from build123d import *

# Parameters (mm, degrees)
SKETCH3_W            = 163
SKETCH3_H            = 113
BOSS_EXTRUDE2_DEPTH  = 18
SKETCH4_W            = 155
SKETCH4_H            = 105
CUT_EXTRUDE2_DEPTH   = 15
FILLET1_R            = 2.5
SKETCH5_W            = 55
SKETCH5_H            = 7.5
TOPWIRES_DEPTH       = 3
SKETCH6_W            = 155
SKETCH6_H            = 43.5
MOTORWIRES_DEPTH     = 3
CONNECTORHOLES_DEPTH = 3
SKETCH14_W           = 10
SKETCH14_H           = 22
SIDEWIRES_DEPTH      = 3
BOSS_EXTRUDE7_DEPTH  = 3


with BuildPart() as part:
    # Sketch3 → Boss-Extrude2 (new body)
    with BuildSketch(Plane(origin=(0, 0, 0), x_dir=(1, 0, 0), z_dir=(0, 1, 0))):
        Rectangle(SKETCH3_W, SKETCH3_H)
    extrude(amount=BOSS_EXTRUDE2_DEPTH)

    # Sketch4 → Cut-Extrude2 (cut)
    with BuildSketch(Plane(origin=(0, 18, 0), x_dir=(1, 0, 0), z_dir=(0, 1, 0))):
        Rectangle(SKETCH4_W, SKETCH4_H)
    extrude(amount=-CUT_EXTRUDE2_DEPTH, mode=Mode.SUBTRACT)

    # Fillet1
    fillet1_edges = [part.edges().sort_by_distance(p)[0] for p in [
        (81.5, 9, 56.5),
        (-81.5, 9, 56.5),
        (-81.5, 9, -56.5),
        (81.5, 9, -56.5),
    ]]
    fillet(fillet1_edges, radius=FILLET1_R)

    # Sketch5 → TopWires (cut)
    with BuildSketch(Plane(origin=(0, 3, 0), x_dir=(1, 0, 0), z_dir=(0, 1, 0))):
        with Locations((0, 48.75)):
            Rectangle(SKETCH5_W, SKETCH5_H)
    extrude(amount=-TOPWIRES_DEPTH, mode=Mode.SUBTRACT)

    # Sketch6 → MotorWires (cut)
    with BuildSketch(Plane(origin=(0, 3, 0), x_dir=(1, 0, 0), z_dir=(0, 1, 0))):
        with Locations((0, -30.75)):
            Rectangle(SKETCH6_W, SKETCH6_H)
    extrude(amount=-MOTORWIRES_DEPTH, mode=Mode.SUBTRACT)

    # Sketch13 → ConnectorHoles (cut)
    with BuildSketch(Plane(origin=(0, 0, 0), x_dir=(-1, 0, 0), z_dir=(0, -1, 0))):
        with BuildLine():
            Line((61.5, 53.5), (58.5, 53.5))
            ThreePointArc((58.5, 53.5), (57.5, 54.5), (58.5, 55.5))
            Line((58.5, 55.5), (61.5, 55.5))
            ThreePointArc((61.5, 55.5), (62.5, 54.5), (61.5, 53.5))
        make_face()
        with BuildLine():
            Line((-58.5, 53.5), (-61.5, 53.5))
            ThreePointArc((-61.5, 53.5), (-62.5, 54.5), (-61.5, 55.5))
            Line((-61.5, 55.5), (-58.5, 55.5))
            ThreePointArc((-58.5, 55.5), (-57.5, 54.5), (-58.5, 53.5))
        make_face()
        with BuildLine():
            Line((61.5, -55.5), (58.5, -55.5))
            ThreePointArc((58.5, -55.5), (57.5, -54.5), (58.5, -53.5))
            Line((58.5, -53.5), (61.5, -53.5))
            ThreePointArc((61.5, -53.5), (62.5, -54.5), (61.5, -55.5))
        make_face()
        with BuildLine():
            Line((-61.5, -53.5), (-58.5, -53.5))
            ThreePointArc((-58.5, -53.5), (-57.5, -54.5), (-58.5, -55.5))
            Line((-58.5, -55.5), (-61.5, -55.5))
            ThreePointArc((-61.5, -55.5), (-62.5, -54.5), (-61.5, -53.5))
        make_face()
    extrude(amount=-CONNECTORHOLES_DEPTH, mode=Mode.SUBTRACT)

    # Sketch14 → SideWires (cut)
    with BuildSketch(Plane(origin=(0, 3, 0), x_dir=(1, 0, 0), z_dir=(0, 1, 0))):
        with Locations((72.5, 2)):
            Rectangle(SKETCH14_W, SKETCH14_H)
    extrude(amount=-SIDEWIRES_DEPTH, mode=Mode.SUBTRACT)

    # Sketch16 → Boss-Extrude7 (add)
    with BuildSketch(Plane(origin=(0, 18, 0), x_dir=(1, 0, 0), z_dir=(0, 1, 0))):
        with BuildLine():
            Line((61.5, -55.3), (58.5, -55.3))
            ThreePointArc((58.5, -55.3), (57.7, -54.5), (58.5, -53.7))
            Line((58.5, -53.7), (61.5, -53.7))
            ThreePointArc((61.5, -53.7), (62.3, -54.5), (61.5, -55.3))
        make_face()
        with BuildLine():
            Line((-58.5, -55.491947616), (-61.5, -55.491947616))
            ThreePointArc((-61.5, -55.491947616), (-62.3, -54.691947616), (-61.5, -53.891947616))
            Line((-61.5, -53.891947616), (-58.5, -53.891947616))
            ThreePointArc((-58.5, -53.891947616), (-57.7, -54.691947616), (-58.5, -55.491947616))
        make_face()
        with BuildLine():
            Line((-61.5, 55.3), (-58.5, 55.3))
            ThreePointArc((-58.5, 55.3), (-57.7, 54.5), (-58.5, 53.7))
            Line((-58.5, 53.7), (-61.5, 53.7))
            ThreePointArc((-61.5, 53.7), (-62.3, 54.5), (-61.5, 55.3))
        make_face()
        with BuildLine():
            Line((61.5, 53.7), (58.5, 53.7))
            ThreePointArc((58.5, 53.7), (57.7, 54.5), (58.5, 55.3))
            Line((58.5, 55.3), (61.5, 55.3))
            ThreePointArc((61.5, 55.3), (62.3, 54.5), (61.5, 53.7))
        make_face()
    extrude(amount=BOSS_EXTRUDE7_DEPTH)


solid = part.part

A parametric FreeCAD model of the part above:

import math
import FreeCAD as App
import Part
import Sketcher

V = App.Vector


def edges_at(feature, points):
    """Names of the edges that pass closest to the given points."""
    edges = feature.Shape.Edges
    near = lambda p: min(range(len(edges)), key=lambda i: edges[i].distToShape(Part.Vertex(*p))[0])
    return sorted({f"Edge{near(p) + 1}" for p in points})

doc = App.newDocument("Part")
body = doc.addObject("PartDesign::Body", "Body")

sketch1 = doc.addObject("Sketcher::SketchObject", "Sketch")
body.addObject(sketch1)
sketch1.AttachmentSupport = (doc.XZ_Plane, [""])
sketch1.MapMode = "FlatFace"
sketch1.addGeometry(Part.LineSegment(V(-82, -56, 0), V(-82, 56, 0)), False)
sketch1.addGeometry(Part.LineSegment(V(-82, 56, 0), V(82, 56, 0)), False)
sketch1.addGeometry(Part.LineSegment(V(82, 56, 0), V(82, -56, 0)), False)
sketch1.addGeometry(Part.LineSegment(V(82, -56, 0), V(-82, -56, 0)), False)
sketch1.addConstraint(Sketcher.Constraint("Coincident", 0, 2, 1, 1))
sketch1.addConstraint(Sketcher.Constraint("Coincident", 1, 2, 2, 1))
sketch1.addConstraint(Sketcher.Constraint("Coincident", 2, 2, 3, 1))
sketch1.addConstraint(Sketcher.Constraint("Coincident", 3, 2, 0, 1))
sketch1.addConstraint(Sketcher.Constraint("Vertical", 0))
sketch1.addConstraint(Sketcher.Constraint("Horizontal", 1))
sketch1.addConstraint(Sketcher.Constraint("Vertical", 2))
sketch1.addConstraint(Sketcher.Constraint("Horizontal", 3))
sketch1.addConstraint(Sketcher.Constraint("Symmetric", 0, 2, 2, 2, -1, 1))
sketch1.addConstraint(Sketcher.Constraint("DistanceX", 1, 1, 1, 2, 163.0))
sketch1.addConstraint(Sketcher.Constraint("DistanceY", 0, 1, 0, 2, 113.0))
pad1 = doc.addObject("PartDesign::Pad", "Pad")
body.addObject(pad1)
pad1.Profile = sketch1
pad1.Length = 18
pad1.Reversed = True

sketch2 = doc.addObject("Sketcher::SketchObject", "Sketch001")
body.addObject(sketch2)
sketch2.AttachmentSupport = (doc.XZ_Plane, [""])
sketch2.MapMode = "FlatFace"
sketch2.AttachmentOffset = App.Placement(V(0, 0, -18), App.Rotation())
sketch2.addGeometry(Part.LineSegment(V(-78, -52, 0), V(-78, 52, 0)), False)
sketch2.addGeometry(Part.LineSegment(V(-78, 52, 0), V(78, 52, 0)), False)
sketch2.addGeometry(Part.LineSegment(V(78, 52, 0), V(78, -52, 0)), False)
sketch2.addGeometry(Part.LineSegment(V(78, -52, 0), V(-78, -52, 0)), False)
sketch2.addConstraint(Sketcher.Constraint("Coincident", 0, 2, 1, 1))
sketch2.addConstraint(Sketcher.Constraint("Coincident", 1, 2, 2, 1))
sketch2.addConstraint(Sketcher.Constraint("Coincident", 2, 2, 3, 1))
sketch2.addConstraint(Sketcher.Constraint("Coincident", 3, 2, 0, 1))
sketch2.addConstraint(Sketcher.Constraint("Vertical", 0))
sketch2.addConstraint(Sketcher.Constraint("Horizontal", 1))
sketch2.addConstraint(Sketcher.Constraint("Vertical", 2))
sketch2.addConstraint(Sketcher.Constraint("Horizontal", 3))
sketch2.addConstraint(Sketcher.Constraint("Symmetric", 0, 2, 2, 2, -1, 1))
sketch2.addConstraint(Sketcher.Constraint("DistanceX", 1, 1, 1, 2, 155.0))
sketch2.addConstraint(Sketcher.Constraint("DistanceY", 0, 1, 0, 2, 105.0))
pocket1 = doc.addObject("PartDesign::Pocket", "Pocket")
body.addObject(pocket1)
pocket1.Profile = sketch2
pocket1.Length = 15
pocket1.Reversed = True
doc.recompute()

fillet = doc.addObject("PartDesign::Fillet", "Fillet")
body.addObject(fillet)
fillet.Base = (pocket1, edges_at(pocket1, [
    (81.5, 9, 56.5),
    (-81.5, 9, 56.5),
    (-81.5, 9, -56.5),
    (81.5, 9, -56.5),
]))
fillet.Radius = 2.5

sketch3 = doc.addObject("Sketcher::SketchObject", "Sketch002")
body.addObject(sketch3)
sketch3.AttachmentSupport = (doc.XZ_Plane, [""])
sketch3.MapMode = "FlatFace"
sketch3.AttachmentOffset = App.Placement(V(0, 0, -3), App.Rotation())
sketch3.addGeometry(Part.LineSegment(V(-28, -52, 0), V(-28, -45, 0)), False)
sketch3.addGeometry(Part.LineSegment(V(-28, -45, 0), V(28, -45, 0)), False)
sketch3.addGeometry(Part.LineSegment(V(28, -45, 0), V(28, -52, 0)), False)
sketch3.addGeometry(Part.LineSegment(V(28, -52, 0), V(-28, -52, 0)), False)
sketch3.addConstraint(Sketcher.Constraint("Coincident", 0, 2, 1, 1))
sketch3.addConstraint(Sketcher.Constraint("Coincident", 1, 2, 2, 1))
sketch3.addConstraint(Sketcher.Constraint("Coincident", 2, 2, 3, 1))
sketch3.addConstraint(Sketcher.Constraint("Coincident", 3, 2, 0, 1))
sketch3.addConstraint(Sketcher.Constraint("Vertical", 0))
sketch3.addConstraint(Sketcher.Constraint("Horizontal", 1))
sketch3.addConstraint(Sketcher.Constraint("Vertical", 2))
sketch3.addConstraint(Sketcher.Constraint("Horizontal", 3))
sketch3.addConstraint(Sketcher.Constraint("DistanceX", 1, 1, 1, 2, 55.0))
sketch3.addConstraint(Sketcher.Constraint("DistanceY", 0, 1, 0, 2, 7.5))
sketch3.addConstraint(Sketcher.Constraint("DistanceY", 0, 2, -1, 1, 45.0))
sketch3.addConstraint(Sketcher.Constraint("DistanceX", 0, 2, -1, 1, 27.5))
pocket2 = doc.addObject("PartDesign::Pocket", "Pocket001")
body.addObject(pocket2)
pocket2.Profile = sketch3
pocket2.Length = 3
pocket2.Reversed = True

sketch4 = doc.addObject("Sketcher::SketchObject", "Sketch003")
body.addObject(sketch4)
sketch4.AttachmentSupport = (doc.XZ_Plane, [""])
sketch4.MapMode = "FlatFace"
sketch4.AttachmentOffset = App.Placement(V(0, 0, -3), App.Rotation())
sketch4.addGeometry(Part.LineSegment(V(-78, 9, 0), V(-78, 52, 0)), False)
sketch4.addGeometry(Part.LineSegment(V(-78, 52, 0), V(78, 52, 0)), False)
sketch4.addGeometry(Part.LineSegment(V(78, 52, 0), V(78, 9, 0)), False)
sketch4.addGeometry(Part.LineSegment(V(78, 9, 0), V(-78, 9, 0)), False)
sketch4.addConstraint(Sketcher.Constraint("Coincident", 0, 2, 1, 1))
sketch4.addConstraint(Sketcher.Constraint("Coincident", 1, 2, 2, 1))
sketch4.addConstraint(Sketcher.Constraint("Coincident", 2, 2, 3, 1))
sketch4.addConstraint(Sketcher.Constraint("Coincident", 3, 2, 0, 1))
sketch4.addConstraint(Sketcher.Constraint("Vertical", 0))
sketch4.addConstraint(Sketcher.Constraint("Horizontal", 1))
sketch4.addConstraint(Sketcher.Constraint("Vertical", 2))
sketch4.addConstraint(Sketcher.Constraint("Horizontal", 3))
sketch4.addConstraint(Sketcher.Constraint("DistanceX", 1, 1, 1, 2, 155.0))
sketch4.addConstraint(Sketcher.Constraint("DistanceY", 0, 1, 0, 2, 43.5))
sketch4.addConstraint(Sketcher.Constraint("DistanceY", -1, 1, 2, 2, 9.0))
sketch4.addConstraint(Sketcher.Constraint("DistanceX", 0, 2, -1, 1, 77.5))
pocket3 = doc.addObject("PartDesign::Pocket", "Pocket002")
body.addObject(pocket3)
pocket3.Profile = sketch4
pocket3.Length = 3
pocket3.Reversed = True

sketch5 = doc.addObject("Sketcher::SketchObject", "Sketch004")
body.addObject(sketch5)
sketch5.AttachmentSupport = (doc.XZ_Plane, [""])
sketch5.MapMode = "FlatFace"
sketch5.addGeometry(Part.LineSegment(V(-58.5, -53.5, 0), V(-61.5, -53.5, 0)), False)
sketch5.addGeometry(Part.ArcOfCircle(Part.Circle(V(-61.5, -54.5, 0), V(0, 0, 1), 1), math.radians(90), math.radians(270)), False)
sketch5.addGeometry(Part.LineSegment(V(-61.5, -55.5, 0), V(-58.5, -55.5, 0)), False)
sketch5.addGeometry(Part.ArcOfCircle(Part.Circle(V(-58.5, -54.5, 0), V(0, 0, 1), 1), math.radians(-90), math.radians(90)), False)
sketch5.addGeometry(Part.LineSegment(V(61.5, -53.5, 0), V(58.5, -53.5, 0)), False)
sketch5.addGeometry(Part.ArcOfCircle(Part.Circle(V(58.5, -54.5, 0), V(0, 0, 1), 1), math.radians(90), math.radians(270)), False)
sketch5.addGeometry(Part.LineSegment(V(58.5, -55.5, 0), V(61.5, -55.5, 0)), False)
sketch5.addGeometry(Part.ArcOfCircle(Part.Circle(V(61.5, -54.5, 0), V(0, 0, 1), 1), math.radians(-90), math.radians(90)), False)
sketch5.addGeometry(Part.LineSegment(V(-58.5, 55.5, 0), V(-61.5, 55.5, 0)), False)
sketch5.addGeometry(Part.ArcOfCircle(Part.Circle(V(-61.5, 54.5, 0), V(0, 0, 1), 1), math.radians(90), math.radians(270)), False)
sketch5.addGeometry(Part.LineSegment(V(-61.5, 53.5, 0), V(-58.5, 53.5, 0)), False)
sketch5.addGeometry(Part.ArcOfCircle(Part.Circle(V(-58.5, 54.5, 0), V(0, 0, 1), 1), math.radians(-90), math.radians(90)), False)
sketch5.addGeometry(Part.LineSegment(V(58.5, 53.5, 0), V(61.5, 53.5, 0)), False)
sketch5.addGeometry(Part.ArcOfCircle(Part.Circle(V(61.5, 54.5, 0), V(0, 0, 1), 1), math.radians(-90), math.radians(90)), False)
sketch5.addGeometry(Part.LineSegment(V(61.5, 55.5, 0), V(58.5, 55.5, 0)), False)
sketch5.addGeometry(Part.ArcOfCircle(Part.Circle(V(58.5, 54.5, 0), V(0, 0, 1), 1), math.radians(90), math.radians(270)), False)
sketch5.addConstraint(Sketcher.Constraint("Tangent", 0, 2, 1, 1))
sketch5.addConstraint(Sketcher.Constraint("Tangent", 1, 2, 2, 1))
sketch5.addConstraint(Sketcher.Constraint("Tangent", 2, 2, 3, 1))
sketch5.addConstraint(Sketcher.Constraint("Tangent", 3, 2, 0, 1))
sketch5.addConstraint(Sketcher.Constraint("Tangent", 4, 2, 5, 1))
sketch5.addConstraint(Sketcher.Constraint("Tangent", 5, 2, 6, 1))
sketch5.addConstraint(Sketcher.Constraint("Tangent", 6, 2, 7, 1))
sketch5.addConstraint(Sketcher.Constraint("Tangent", 7, 2, 4, 1))
sketch5.addConstraint(Sketcher.Constraint("Tangent", 8, 2, 9, 1))
sketch5.addConstraint(Sketcher.Constraint("Tangent", 9, 2, 10, 1))
sketch5.addConstraint(Sketcher.Constraint("Tangent", 10, 2, 11, 1))
sketch5.addConstraint(Sketcher.Constraint("Tangent", 11, 2, 8, 1))
sketch5.addConstraint(Sketcher.Constraint("Tangent", 12, 2, 13, 1))
sketch5.addConstraint(Sketcher.Constraint("Tangent", 13, 2, 14, 1))
sketch5.addConstraint(Sketcher.Constraint("Tangent", 14, 2, 15, 1))
sketch5.addConstraint(Sketcher.Constraint("Tangent", 15, 2, 12, 1))
sketch5.addConstraint(Sketcher.Constraint("Horizontal", 0))
sketch5.addConstraint(Sketcher.Constraint("Horizontal", 2))
sketch5.addConstraint(Sketcher.Constraint("Horizontal", 4))
sketch5.addConstraint(Sketcher.Constraint("Horizontal", 6))
sketch5.addConstraint(Sketcher.Constraint("Horizontal", 8))
sketch5.addConstraint(Sketcher.Constraint("Horizontal", 10))
sketch5.addConstraint(Sketcher.Constraint("Horizontal", 12))
sketch5.addConstraint(Sketcher.Constraint("Horizontal", 14))
sketch5.addConstraint(Sketcher.Constraint("Equal", 3, 5))
sketch5.addConstraint(Sketcher.Constraint("Equal", 7, 9))
sketch5.addConstraint(Sketcher.Constraint("Equal", 11, 13))
sketch5.addConstraint(Sketcher.Constraint("Symmetric", 7, 3, 9, 3, -1, 1))
sketch5.addConstraint(Sketcher.Constraint("Symmetric", 1, 3, 13, 3, -1, 1))
sketch5.addConstraint(Sketcher.Constraint("Symmetric", 3, 3, 5, 3, -2))
sketch5.addConstraint(Sketcher.Constraint("Vertical", 1, 3, 9, 3))
sketch5.addConstraint(Sketcher.Constraint("Vertical", 3, 3, 11, 3))
sketch5.addConstraint(Sketcher.Constraint("Vertical", 5, 3, 15, 3))
sketch5.addConstraint(Sketcher.Constraint("Radius", 1, 1.0))
sketch5.addConstraint(Sketcher.Constraint("DistanceX", 0, 2, 0, 1, 3.0))
sketch5.addConstraint(Sketcher.Constraint("DistanceX", 3, 3, 5, 3, 117.0))
sketch5.addConstraint(Sketcher.Constraint("DistanceY", 1, 3, 9, 3, 109.0))
pocket4 = doc.addObject("PartDesign::Pocket", "Pocket003")
body.addObject(pocket4)
pocket4.Profile = sketch5
pocket4.Length = 3

sketch6 = doc.addObject("Sketcher::SketchObject", "Sketch005")
body.addObject(sketch6)
sketch6.AttachmentSupport = (doc.XZ_Plane, [""])
sketch6.MapMode = "FlatFace"
sketch6.AttachmentOffset = App.Placement(V(0, 0, -3), App.Rotation())
sketch6.addGeometry(Part.LineSegment(V(68, -13, 0), V(68, 9, 0)), False)
sketch6.addGeometry(Part.LineSegment(V(68, 9, 0), V(78, 9, 0)), False)
sketch6.addGeometry(Part.LineSegment(V(78, 9, 0), V(78, -13, 0)), False)
sketch6.addGeometry(Part.LineSegment(V(78, -13, 0), V(68, -13, 0)), False)
sketch6.addConstraint(Sketcher.Constraint("Coincident", 0, 2, 1, 1))
sketch6.addConstraint(Sketcher.Constraint("Coincident", 1, 2, 2, 1))
sketch6.addConstraint(Sketcher.Constraint("Coincident", 2, 2, 3, 1))
sketch6.addConstraint(Sketcher.Constraint("Coincident", 3, 2, 0, 1))
sketch6.addConstraint(Sketcher.Constraint("Vertical", 0))
sketch6.addConstraint(Sketcher.Constraint("Horizontal", 1))
sketch6.addConstraint(Sketcher.Constraint("Vertical", 2))
sketch6.addConstraint(Sketcher.Constraint("Horizontal", 3))
sketch6.addConstraint(Sketcher.Constraint("DistanceX", 1, 1, 1, 2, 10.0))
sketch6.addConstraint(Sketcher.Constraint("DistanceY", 0, 1, 0, 2, 22.0))
sketch6.addConstraint(Sketcher.Constraint("DistanceY", -1, 1, 0, 2, 9.0))
sketch6.addConstraint(Sketcher.Constraint("DistanceX", -1, 1, 0, 2, 67.5))
pocket5 = doc.addObject("PartDesign::Pocket", "Pocket004")
body.addObject(pocket5)
pocket5.Profile = sketch6
pocket5.Length = 3
pocket5.Reversed = True

sketch7 = doc.addObject("Sketcher::SketchObject", "Sketch006")
body.addObject(sketch7)
sketch7.AttachmentSupport = (doc.XZ_Plane, [""])
sketch7.MapMode = "FlatFace"
sketch7.AttachmentOffset = App.Placement(V(0, 0, -18), App.Rotation())
sketch7.addGeometry(Part.LineSegment(V(58.5, 55.3, 0), V(61.5, 55.3, 0)), False)
sketch7.addGeometry(Part.ArcOfCircle(Part.Circle(V(61.5, 54.5, 0), V(0, 0, 1), 0.8), math.radians(-90), math.radians(90)), False)
sketch7.addGeometry(Part.LineSegment(V(61.5, 53.7, 0), V(58.5, 53.7, 0)), False)
sketch7.addGeometry(Part.ArcOfCircle(Part.Circle(V(58.5, 54.5, 0), V(0, 0, 1), 0.8), math.radians(90), math.radians(270)), False)
sketch7.addGeometry(Part.LineSegment(V(-61.5, 55.5, 0), V(-58.5, 55.5, 0)), False)
sketch7.addGeometry(Part.ArcOfCircle(Part.Circle(V(-58.5, 54.7, 0), V(0, 0, 1), 0.8), math.radians(-90), math.radians(90)), False)
sketch7.addGeometry(Part.LineSegment(V(-58.5, 53.9, 0), V(-61.5, 53.9, 0)), False)
sketch7.addGeometry(Part.ArcOfCircle(Part.Circle(V(-61.5, 54.7, 0), V(0, 0, 1), 0.8), math.radians(90), math.radians(270)), False)
sketch7.addGeometry(Part.LineSegment(V(-58.5, -55.3, 0), V(-61.5, -55.3, 0)), False)
sketch7.addGeometry(Part.ArcOfCircle(Part.Circle(V(-61.5, -54.5, 0), V(0, 0, 1), 0.8), math.radians(90), math.radians(270)), False)
sketch7.addGeometry(Part.LineSegment(V(-61.5, -53.7, 0), V(-58.5, -53.7, 0)), False)
sketch7.addGeometry(Part.ArcOfCircle(Part.Circle(V(-58.5, -54.5, 0), V(0, 0, 1), 0.8), math.radians(-90), math.radians(90)), False)
sketch7.addGeometry(Part.LineSegment(V(58.5, -53.7, 0), V(61.5, -53.7, 0)), False)
sketch7.addGeometry(Part.ArcOfCircle(Part.Circle(V(61.5, -54.5, 0), V(0, 0, 1), 0.8), math.radians(-90), math.radians(90)), False)
sketch7.addGeometry(Part.LineSegment(V(61.5, -55.3, 0), V(58.5, -55.3, 0)), False)
sketch7.addGeometry(Part.ArcOfCircle(Part.Circle(V(58.5, -54.5, 0), V(0, 0, 1), 0.8), math.radians(90), math.radians(270)), False)
sketch7.addConstraint(Sketcher.Constraint("Tangent", 0, 2, 1, 2))
sketch7.addConstraint(Sketcher.Constraint("Tangent", 1, 1, 2, 1))
sketch7.addConstraint(Sketcher.Constraint("Tangent", 2, 2, 3, 2))
sketch7.addConstraint(Sketcher.Constraint("Tangent", 3, 1, 0, 1))
sketch7.addConstraint(Sketcher.Constraint("Tangent", 4, 2, 5, 2))
sketch7.addConstraint(Sketcher.Constraint("Tangent", 5, 1, 6, 1))
sketch7.addConstraint(Sketcher.Constraint("Tangent", 6, 2, 7, 2))
sketch7.addConstraint(Sketcher.Constraint("Tangent", 7, 1, 4, 1))
sketch7.addConstraint(Sketcher.Constraint("Tangent", 8, 2, 9, 2))
sketch7.addConstraint(Sketcher.Constraint("Tangent", 9, 1, 10, 1))
sketch7.addConstraint(Sketcher.Constraint("Tangent", 10, 2, 11, 2))
sketch7.addConstraint(Sketcher.Constraint("Tangent", 11, 1, 8, 1))
sketch7.addConstraint(Sketcher.Constraint("Tangent", 12, 2, 13, 2))
sketch7.addConstraint(Sketcher.Constraint("Tangent", 13, 1, 14, 1))
sketch7.addConstraint(Sketcher.Constraint("Tangent", 14, 2, 15, 2))
sketch7.addConstraint(Sketcher.Constraint("Tangent", 15, 1, 12, 1))
sketch7.addConstraint(Sketcher.Constraint("Horizontal", 0))
sketch7.addConstraint(Sketcher.Constraint("Horizontal", 2))
sketch7.addConstraint(Sketcher.Constraint("Horizontal", 4))
sketch7.addConstraint(Sketcher.Constraint("Horizontal", 6))
sketch7.addConstraint(Sketcher.Constraint("Horizontal", 8))
sketch7.addConstraint(Sketcher.Constraint("Horizontal", 10))
sketch7.addConstraint(Sketcher.Constraint("Horizontal", 12))
sketch7.addConstraint(Sketcher.Constraint("Horizontal", 14))
sketch7.addConstraint(Sketcher.Constraint("Equal", 3, 5))
sketch7.addConstraint(Sketcher.Constraint("Equal", 7, 9))
sketch7.addConstraint(Sketcher.Constraint("Equal", 11, 13))
sketch7.addConstraint(Sketcher.Constraint("Symmetric", 1, 3, 9, 3, -1, 1))
sketch7.addConstraint(Sketcher.Constraint("Symmetric", 9, 3, 13, 3, -2))
sketch7.addConstraint(Sketcher.Constraint("Vertical", 7, 3, 9, 3))
sketch7.addConstraint(Sketcher.Constraint("Vertical", 5, 3, 11, 3))
sketch7.addConstraint(Sketcher.Constraint("Vertical", 3, 3, 15, 3))
sketch7.addConstraint(Sketcher.Constraint("Equal", 2, 4))
sketch7.addConstraint(Sketcher.Constraint("Radius", 1, 0.8))
sketch7.addConstraint(Sketcher.Constraint("DistanceX", 0, 1, 0, 2, 3.0))
sketch7.addConstraint(Sketcher.Constraint("DistanceX", 5, 3, 3, 3, 117.0))
sketch7.addConstraint(Sketcher.Constraint("DistanceY", 9, 3, 3, 3, 109.0))
sketch7.addConstraint(Sketcher.Constraint("DistanceY", -1, 1, 5, 3, 54.691948))
pad2 = doc.addObject("PartDesign::Pad", "Pad001")
body.addObject(pad2)
pad2.Profile = sketch7
pad2.Length = 3
pad2.Reversed = True

doc.recompute()
